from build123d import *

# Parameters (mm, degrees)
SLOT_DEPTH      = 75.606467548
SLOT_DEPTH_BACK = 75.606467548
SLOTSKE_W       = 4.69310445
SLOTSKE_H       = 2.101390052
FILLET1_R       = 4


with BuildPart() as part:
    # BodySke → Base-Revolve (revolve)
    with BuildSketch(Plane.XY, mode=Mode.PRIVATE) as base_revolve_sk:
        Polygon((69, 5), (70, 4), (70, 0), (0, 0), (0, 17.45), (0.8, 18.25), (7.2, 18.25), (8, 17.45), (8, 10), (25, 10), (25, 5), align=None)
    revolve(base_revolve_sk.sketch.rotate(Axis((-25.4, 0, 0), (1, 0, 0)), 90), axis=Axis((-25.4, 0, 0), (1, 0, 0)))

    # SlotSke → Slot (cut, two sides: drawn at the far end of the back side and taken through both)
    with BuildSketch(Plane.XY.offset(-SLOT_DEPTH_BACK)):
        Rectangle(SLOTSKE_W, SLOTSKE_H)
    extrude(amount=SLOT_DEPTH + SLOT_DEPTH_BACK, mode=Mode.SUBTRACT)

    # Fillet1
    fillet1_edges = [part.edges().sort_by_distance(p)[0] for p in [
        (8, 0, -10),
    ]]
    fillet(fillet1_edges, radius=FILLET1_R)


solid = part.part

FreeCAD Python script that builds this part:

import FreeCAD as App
import Part
import Sketcher


def edges_at(feature, points):
    """Names of the edges that pass closest to the given points."""
    edges = feature.Shape.Edges
    near = lambda p: min(range(len(edges)), key=lambda i: edges[i].distToShape(Part.Vertex(*p))[0])
    return sorted({f"Edge{near(p) + 1}" for p in points})

doc = App.newDocument("Part")
params = doc.addObject("Spreadsheet::Sheet", "Params")
for row, (alias, value) in enumerate([
    ("sketch1_width", "44 mm"),
    ("sketch1_width2", "17 mm"),
    ("sketch1_width3", "70 mm"),
    ("sketch1_height", "5 mm"),
    ("sketch1_height2", "4 mm"),
    ("revolution_angle", "360 deg"),
    ("fillet_radius", "4 mm"),
], start=1):
    params.set(f"A{row}", alias)
    params.set(f"B{row}", "=" + value)
    params.setAlias(f"B{row}", alias)

body = doc.addObject("PartDesign::Body", "Body")

sketch1 = body.newObject("Sketcher::SketchObject", "Sketch")
sketch1.AttachmentSupport = (doc.getObject("XY_Plane"), [""])
sketch1.MapMode = "FlatFace"
sketch1.addGeometry(Part.LineSegment(App.Vector(70, 4, 0), App.Vector(69, 5, 0)), False)
sketch1.addGeometry(Part.LineSegment(App.Vector(69, 5, 0), App.Vector(25, 5, 0)), False)
sketch1.addGeometry(Part.LineSegment(App.Vector(25, 5, 0), App.Vector(25, 10, 0)), False)
sketch1.addGeometry(Part.LineSegment(App.Vector(25, 10, 0), App.Vector(8, 10, 0)), False)
sketch1.addGeometry(Part.LineSegment(App.Vector(8, 10, 0), App.Vector(8, 17.4, 0)), False)
sketch1.addGeometry(Part.LineSegment(App.Vector(8, 17.4, 0), App.Vector(7.2, 18.2, 0)), False)
sketch1.addGeometry(Part.LineSegment(App.Vector(7.2, 18.2, 0), App.Vector(0.8, 18.2, 0)), False)
sketch1.addGeometry(Part.LineSegment(App.Vector(0.8, 18.2, 0), App.Vector(0, 17.4, 0)), False)
sketch1.addGeometry(Part.LineSegment(App.Vector(0, 17.4, 0), App.Vector(0, 0, 0)), False)
sketch1.addGeometry(Part.LineSegment(App.Vector(0, 0, 0), App.Vector(70, 0, 0)), False)
sketch1.addGeometry(Part.LineSegment(App.Vector(70, 0, 0), App.Vector(70, 4, 0)), False)
sketch1.addConstraint(Sketcher.Constraint("Coincident", 0, 2, 1, 1))
sketch1.addConstraint(Sketcher.Constraint("Coincident", 1, 2, 2, 1))
sketch1.addConstraint(Sketcher.Constraint("Coincident", 2, 2, 3, 1))
sketch1.addConstraint(Sketcher.Constraint("Coincident", 3, 2, 4, 1))
sketch1.addConstraint(Sketcher.Constraint("Coincident", 4, 2, 5, 1))
sketch1.addConstraint(Sketcher.Constraint("Coincident", 5, 2, 6, 1))
sketch1.addConstraint(Sketcher.Constraint("Coincident", 6, 2, 7, 1))
sketch1.addConstraint(Sketcher.Constraint("Coincident", 7, 2, 8, 1))
sketch1.addConstraint(Sketcher.Constraint("Coincident", 8, 2, 9, 1))
sketch1.addConstraint(Sketcher.Constraint("Coincident", 9, 2, 10, 1))
sketch1.addConstraint(Sketcher.Constraint("Coincident", 10, 2, 0, 1))
sketch1.addConstraint(Sketcher.Constraint("Horizontal", 1))
sketch1.addConstraint(Sketcher.Constraint("Vertical", 2))
sketch1.addConstraint(Sketcher.Constraint("Horizontal", 3))
sketch1.addConstraint(Sketcher.Constraint("Vertical", 4))
sketch1.addConstraint(Sketcher.Constraint("Horizontal", 6))
sketch1.addConstraint(Sketcher.Constraint("Vertical", 8))
sketch1.addConstraint(Sketcher.Constraint("Horizontal", 9))
sketch1.addConstraint(Sketcher.Constraint("Vertical", 10))
sketch1.addConstraint(Sketcher.Constraint("Coincident", 8, 2, -1, 1))
sketch1.addConstraint(Sketcher.Constraint("Parallel", 0, 5))
sketch1.addConstraint(Sketcher.Constraint("Perpendicular", 5, 7))
sketch1.addConstraint(Sketcher.Constraint("Horizontal", 4, 2, 7, 2))
sketch1.addConstraint(Sketcher.Constraint("Equal", 5, 7))
sketch1.addConstraint(Sketcher.Constraint("DistanceX", 1, 2, 1, 1, 44.0))
sketch1.addConstraint(Sketcher.Constraint("DistanceX", 3, 2, 3, 1, 17.0))
sketch1.addConstraint(Sketcher.Constraint("DistanceX", 9, 1, 9, 2, 70.0))
sketch1.addConstraint(Sketcher.Constraint("DistanceY", 2, 1, 2, 2, 5.0))
sketch1.addConstraint(Sketcher.Constraint("DistanceY", 10, 1, 10, 2, 4.0))
sketch1.addConstraint(Sketcher.Constraint("DistanceX", 6, 2, 6, 1, 6.4))
sketch1.addConstraint(Sketcher.Constraint("DistanceX", -1, 1, 0, 2, 69.0))
sketch1.addConstraint(Sketcher.Constraint("DistanceY", 4, 1, 4, 2, 7.45))
sketch1.setExpression("Constraints[24]", "Params.sketch1_width")
sketch1.setExpression("Constraints[25]", "Params.sketch1_width2")
sketch1.setExpression("Constraints[26]", "Params.sketch1_width3")
sketch1.setExpression("Constraints[27]", "Params.sketch1_height")
sketch1.setExpression("Constraints[28]", "Params.sketch1_height2")
revolution = body.newObject("PartDesign::Revolution", "Revolution")
revolution.Profile = sketch1
revolution.ReferenceAxis = (sketch1, ["H_Axis"])
revolution.setExpression("Angle", "Params.revolution_angle")

sketch2 = body.newObject("Sketcher::SketchObject", "Sketch001")
sketch2.AttachmentSupport = (doc.getObject("XY_Plane"), [""])
sketch2.MapMode = "FlatFace"
sketch2.addGeometry(Part.LineSegment(App.Vector(-2.3, 1.1, 0), App.Vector(-2.3, -1.1, 0)), False)
sketch2.addGeometry(Part.LineSegment(App.Vector(-2.3, -1.1, 0), App.Vector(2.3, -1.1, 0)), False)
sketch2.addGeometry(Part.LineSegment(App.Vector(2.3, -1.1, 0), App.Vector(2.3, 1.1, 0)), False)
sketch2.addGeometry(Part.LineSegment(App.Vector(2.3, 1.1, 0), App.Vector(-2.3, 1.1, 0)), False)
sketch2.addConstraint(Sketcher.Constraint("Coincident", 0, 2, 1, 1))
sketch2.addConstraint(Sketcher.Constraint("Coincident", 1, 2, 2, 1))
sketch2.addConstraint(Sketcher.Constraint("Coincident", 2, 2, 3, 1))
sketch2.addConstraint(Sketcher.Constraint("Coincident", 3, 2, 0, 1))
sketch2.addConstraint(Sketcher.Constraint("Vertical", 0))
sketch2.addConstraint(Sketcher.Constraint("Horizontal", 1))
sketch2.addConstraint(Sketcher.Constraint("Vertical", 2))
sketch2.addConstraint(Sketcher.Constraint("Horizontal", 3))
sketch2.addConstraint(Sketcher.Constraint("Symmetric", 0, 2, 2, 2, -1, 1))
sketch2.addConstraint(Sketcher.Constraint("DistanceY", 0, 2, 0, 1, 2.10139))
sketch2.addConstraint(Sketcher.Constraint("DistanceX", 1, 1, 1, 2, 4.693104))
pocket1 = body.newObject("PartDesign::Pocket", "Pocket")
pocket1.Profile = sketch2
pocket1.Type = "ThroughAll"
pocket1.Midplane = True
doc.recompute()

fillet = body.newObject("PartDesign::Fillet", "Fillet")
fillet.Base = (pocket1, edges_at(pocket1, [(8, 0, -10)]))
fillet.setExpression("Radius", "Params.fillet_radius")

doc.recompute()
